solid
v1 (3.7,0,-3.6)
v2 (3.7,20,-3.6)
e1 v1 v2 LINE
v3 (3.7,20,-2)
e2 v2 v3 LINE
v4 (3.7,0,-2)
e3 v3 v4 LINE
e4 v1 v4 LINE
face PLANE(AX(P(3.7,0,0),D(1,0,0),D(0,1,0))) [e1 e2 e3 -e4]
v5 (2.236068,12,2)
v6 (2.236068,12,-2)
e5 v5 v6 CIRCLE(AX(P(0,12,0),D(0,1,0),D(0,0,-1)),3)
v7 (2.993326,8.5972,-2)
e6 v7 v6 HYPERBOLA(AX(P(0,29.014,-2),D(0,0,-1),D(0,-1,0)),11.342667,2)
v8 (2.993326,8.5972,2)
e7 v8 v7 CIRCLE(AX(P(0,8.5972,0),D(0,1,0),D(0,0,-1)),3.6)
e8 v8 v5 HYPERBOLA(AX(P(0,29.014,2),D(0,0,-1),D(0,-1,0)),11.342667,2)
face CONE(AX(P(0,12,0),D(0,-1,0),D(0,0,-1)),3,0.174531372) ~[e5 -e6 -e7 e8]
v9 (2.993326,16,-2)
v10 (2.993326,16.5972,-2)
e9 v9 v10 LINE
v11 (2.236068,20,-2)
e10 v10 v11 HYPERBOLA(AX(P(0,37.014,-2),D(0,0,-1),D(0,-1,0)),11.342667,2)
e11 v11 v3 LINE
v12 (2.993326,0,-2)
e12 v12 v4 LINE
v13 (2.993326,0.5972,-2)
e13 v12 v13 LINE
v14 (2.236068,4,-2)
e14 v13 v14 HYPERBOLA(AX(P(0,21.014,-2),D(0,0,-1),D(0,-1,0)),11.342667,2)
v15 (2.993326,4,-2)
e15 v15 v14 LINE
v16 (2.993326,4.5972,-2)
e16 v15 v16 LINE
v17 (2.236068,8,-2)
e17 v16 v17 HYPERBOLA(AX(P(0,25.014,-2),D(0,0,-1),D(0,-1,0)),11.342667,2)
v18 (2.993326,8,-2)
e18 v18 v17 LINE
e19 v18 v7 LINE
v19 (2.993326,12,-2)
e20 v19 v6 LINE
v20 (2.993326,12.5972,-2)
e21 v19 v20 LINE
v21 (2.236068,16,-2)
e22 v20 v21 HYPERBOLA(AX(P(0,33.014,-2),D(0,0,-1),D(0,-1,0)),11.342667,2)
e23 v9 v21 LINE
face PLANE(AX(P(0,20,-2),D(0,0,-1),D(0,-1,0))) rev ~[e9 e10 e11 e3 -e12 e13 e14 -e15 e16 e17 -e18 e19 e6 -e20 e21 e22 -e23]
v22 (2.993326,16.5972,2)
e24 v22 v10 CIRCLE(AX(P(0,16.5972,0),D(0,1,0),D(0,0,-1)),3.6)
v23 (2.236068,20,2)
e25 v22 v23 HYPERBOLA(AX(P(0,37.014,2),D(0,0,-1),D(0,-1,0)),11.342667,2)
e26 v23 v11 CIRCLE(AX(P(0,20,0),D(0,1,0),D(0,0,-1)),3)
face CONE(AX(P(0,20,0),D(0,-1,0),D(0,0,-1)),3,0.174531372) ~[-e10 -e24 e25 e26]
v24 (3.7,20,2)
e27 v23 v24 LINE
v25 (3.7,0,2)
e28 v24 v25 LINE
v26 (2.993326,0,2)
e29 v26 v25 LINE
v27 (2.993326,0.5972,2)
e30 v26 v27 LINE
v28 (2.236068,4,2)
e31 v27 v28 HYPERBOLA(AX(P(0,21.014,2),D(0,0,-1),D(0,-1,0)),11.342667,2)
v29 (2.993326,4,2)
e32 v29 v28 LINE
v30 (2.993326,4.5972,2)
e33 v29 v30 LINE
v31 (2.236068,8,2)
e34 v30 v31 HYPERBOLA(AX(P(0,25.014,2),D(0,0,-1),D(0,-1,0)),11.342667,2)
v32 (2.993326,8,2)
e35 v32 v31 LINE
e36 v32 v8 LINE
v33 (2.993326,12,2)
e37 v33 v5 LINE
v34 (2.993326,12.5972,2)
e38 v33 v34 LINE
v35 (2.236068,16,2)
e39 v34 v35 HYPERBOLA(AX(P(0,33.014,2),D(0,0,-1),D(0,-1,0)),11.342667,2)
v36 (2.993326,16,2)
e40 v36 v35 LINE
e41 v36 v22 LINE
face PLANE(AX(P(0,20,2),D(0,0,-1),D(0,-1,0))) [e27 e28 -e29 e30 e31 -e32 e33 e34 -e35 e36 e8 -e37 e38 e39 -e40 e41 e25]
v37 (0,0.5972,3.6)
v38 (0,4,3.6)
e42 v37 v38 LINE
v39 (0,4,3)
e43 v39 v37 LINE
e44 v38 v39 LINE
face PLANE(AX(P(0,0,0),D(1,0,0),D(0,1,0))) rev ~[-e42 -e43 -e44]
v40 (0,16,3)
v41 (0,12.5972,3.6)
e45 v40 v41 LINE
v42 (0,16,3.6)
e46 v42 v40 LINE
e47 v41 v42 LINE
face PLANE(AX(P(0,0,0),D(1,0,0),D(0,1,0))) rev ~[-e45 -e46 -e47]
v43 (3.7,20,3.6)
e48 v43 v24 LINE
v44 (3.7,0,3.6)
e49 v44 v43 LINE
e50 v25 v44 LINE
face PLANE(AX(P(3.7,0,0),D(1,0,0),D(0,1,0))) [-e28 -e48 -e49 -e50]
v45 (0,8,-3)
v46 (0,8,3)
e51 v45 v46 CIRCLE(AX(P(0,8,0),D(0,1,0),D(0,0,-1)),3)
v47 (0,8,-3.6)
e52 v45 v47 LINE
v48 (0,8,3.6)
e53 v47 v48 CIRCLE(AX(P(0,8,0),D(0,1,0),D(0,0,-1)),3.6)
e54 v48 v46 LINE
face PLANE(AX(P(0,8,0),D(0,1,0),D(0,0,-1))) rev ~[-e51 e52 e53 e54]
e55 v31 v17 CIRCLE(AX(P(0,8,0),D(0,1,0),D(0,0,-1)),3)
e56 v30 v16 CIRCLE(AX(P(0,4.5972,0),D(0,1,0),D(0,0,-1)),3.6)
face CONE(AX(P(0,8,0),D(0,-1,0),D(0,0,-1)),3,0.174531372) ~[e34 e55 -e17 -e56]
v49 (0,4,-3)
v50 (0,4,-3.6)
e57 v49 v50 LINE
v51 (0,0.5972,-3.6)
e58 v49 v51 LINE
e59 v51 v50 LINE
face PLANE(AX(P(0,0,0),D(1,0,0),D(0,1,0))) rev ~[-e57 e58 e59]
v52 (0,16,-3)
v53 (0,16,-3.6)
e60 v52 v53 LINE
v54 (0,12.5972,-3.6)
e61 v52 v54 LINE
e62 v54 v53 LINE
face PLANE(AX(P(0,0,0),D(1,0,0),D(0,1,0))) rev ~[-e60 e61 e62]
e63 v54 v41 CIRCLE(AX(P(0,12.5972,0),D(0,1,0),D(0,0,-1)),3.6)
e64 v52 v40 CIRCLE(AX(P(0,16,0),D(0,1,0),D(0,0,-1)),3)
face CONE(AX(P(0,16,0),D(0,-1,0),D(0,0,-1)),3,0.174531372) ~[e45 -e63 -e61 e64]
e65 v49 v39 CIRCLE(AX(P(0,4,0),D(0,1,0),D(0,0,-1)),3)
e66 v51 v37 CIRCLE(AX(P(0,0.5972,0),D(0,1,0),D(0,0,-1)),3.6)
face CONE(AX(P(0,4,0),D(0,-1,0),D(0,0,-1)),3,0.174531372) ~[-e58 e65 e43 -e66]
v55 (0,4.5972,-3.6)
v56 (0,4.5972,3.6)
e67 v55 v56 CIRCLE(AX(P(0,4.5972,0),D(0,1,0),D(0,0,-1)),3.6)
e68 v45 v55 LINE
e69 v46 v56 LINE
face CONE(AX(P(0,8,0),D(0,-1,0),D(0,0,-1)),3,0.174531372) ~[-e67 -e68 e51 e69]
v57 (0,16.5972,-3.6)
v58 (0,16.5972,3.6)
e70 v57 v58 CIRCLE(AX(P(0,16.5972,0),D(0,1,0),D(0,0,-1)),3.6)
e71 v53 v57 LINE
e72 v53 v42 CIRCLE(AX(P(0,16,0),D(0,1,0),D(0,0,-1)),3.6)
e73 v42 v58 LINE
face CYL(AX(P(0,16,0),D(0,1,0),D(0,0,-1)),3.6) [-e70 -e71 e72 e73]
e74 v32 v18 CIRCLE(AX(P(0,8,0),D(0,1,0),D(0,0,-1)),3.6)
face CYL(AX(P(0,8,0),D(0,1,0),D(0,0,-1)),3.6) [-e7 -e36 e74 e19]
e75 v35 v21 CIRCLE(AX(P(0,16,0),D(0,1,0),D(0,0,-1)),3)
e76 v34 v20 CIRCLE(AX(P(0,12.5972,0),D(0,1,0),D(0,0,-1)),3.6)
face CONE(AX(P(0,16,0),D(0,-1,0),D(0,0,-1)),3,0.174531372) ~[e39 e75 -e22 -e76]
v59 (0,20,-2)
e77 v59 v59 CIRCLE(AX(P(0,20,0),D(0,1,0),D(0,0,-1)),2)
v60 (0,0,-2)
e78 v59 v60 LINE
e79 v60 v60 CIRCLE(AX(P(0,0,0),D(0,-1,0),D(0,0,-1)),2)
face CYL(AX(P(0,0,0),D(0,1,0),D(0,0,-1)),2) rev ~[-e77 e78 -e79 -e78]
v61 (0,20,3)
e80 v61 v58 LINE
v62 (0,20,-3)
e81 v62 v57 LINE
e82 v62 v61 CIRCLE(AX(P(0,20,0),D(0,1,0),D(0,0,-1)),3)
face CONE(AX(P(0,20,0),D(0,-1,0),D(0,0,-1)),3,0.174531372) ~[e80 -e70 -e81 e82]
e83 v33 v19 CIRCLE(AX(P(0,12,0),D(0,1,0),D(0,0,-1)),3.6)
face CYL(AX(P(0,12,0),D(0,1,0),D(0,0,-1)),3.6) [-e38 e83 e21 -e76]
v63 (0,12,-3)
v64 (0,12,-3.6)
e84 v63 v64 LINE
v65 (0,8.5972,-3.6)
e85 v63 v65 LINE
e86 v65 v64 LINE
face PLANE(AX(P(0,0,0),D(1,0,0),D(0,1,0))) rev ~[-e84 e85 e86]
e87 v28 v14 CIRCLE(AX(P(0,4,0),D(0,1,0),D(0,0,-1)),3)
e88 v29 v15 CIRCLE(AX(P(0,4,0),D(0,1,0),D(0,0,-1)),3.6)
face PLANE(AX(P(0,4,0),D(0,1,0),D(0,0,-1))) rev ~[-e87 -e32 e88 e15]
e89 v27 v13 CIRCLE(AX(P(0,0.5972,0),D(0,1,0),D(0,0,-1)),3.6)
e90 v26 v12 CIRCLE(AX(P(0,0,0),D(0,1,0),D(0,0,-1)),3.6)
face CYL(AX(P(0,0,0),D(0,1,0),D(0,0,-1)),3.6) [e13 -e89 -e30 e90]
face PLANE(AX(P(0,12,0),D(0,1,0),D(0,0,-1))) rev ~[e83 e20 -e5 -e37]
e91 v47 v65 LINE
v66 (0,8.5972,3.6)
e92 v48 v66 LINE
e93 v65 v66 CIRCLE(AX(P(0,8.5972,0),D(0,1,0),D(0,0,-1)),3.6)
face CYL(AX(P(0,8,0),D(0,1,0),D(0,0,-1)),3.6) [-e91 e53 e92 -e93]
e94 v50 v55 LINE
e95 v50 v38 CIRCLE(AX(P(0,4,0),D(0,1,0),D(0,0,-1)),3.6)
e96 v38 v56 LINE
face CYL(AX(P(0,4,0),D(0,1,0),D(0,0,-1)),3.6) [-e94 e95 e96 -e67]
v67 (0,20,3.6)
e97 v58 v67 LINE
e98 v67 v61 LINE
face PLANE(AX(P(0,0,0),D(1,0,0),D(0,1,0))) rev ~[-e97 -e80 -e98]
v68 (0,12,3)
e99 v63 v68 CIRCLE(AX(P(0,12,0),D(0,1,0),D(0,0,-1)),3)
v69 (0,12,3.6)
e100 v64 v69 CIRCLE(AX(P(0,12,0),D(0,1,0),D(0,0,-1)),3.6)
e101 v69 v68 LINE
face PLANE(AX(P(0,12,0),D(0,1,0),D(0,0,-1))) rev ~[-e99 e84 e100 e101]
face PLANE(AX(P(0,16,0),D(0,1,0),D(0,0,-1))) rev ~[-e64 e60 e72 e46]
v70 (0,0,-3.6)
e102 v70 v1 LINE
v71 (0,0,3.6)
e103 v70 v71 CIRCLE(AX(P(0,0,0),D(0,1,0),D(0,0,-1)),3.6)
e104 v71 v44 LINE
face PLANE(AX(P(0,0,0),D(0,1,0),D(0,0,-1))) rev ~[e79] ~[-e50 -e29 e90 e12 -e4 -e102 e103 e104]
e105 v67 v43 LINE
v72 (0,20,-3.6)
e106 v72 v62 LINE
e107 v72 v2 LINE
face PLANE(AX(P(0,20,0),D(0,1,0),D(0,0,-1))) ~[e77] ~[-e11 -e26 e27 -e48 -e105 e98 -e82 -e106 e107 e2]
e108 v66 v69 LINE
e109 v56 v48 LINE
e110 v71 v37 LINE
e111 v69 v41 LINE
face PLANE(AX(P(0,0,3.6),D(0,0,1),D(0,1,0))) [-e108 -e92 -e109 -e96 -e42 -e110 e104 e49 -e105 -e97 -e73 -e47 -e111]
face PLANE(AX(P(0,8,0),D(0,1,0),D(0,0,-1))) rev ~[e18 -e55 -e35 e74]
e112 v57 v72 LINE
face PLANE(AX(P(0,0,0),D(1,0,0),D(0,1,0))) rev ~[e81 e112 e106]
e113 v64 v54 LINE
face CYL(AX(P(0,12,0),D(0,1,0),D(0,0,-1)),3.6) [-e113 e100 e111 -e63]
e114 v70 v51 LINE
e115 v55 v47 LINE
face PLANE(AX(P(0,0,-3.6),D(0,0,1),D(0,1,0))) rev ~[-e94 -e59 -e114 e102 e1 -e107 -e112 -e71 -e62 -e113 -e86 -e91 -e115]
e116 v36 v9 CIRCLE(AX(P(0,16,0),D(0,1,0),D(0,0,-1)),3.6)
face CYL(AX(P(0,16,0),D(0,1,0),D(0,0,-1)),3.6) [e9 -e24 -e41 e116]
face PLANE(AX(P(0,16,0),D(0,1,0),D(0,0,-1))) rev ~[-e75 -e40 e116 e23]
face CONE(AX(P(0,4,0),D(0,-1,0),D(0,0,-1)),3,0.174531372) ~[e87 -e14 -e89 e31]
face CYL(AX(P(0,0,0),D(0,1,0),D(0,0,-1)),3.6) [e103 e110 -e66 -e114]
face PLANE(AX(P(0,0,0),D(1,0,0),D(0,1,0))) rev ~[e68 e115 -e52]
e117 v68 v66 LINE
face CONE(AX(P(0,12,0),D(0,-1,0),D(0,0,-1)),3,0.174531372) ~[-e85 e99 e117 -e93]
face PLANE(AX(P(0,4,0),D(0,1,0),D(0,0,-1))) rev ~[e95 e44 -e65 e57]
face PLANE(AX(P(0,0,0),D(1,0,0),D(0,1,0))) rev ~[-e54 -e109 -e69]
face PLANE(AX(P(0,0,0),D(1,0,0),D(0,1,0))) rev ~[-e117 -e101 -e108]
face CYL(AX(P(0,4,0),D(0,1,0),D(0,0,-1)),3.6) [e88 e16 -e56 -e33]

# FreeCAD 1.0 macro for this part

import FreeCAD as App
import Part
import Sketcher
from FreeCAD import Vector
Q = App.Units.Quantity


def add_polygon(sketch, points):
    """Adds a closed chain of lines whose ends are joined by coincident constraints."""
    first, n = sketch.GeometryCount, len(points)
    for a, b in zip(points, points[1:] + points[:1]):
        sketch.addGeometry(Part.LineSegment(App.Vector(*a, 0), App.Vector(*b, 0)), False)
    for i in range(n):
        sketch.addConstraint(Sketcher.Constraint("Coincident", first + i, 2, first + (i + 1) % n, 1))

doc = App.newDocument("Part")
body = doc.addObject("PartDesign::Body", "Body")

sketch1 = body.newObject("Sketcher::SketchObject", "Sketch")
sketch1.AttachmentSupport = (doc.getObject("YZ_Plane"), [""])
sketch1.MapMode = "FlatFace"
add_polygon(sketch1, [(0, -2), (0, -3.6), (0.6, -3.6), (4, -3), (4, -3.6), (4.6, -3.6), (8, -3), (8, -3.6), (8.6, -3.6), (12, -3), (12, -3.6), (12.6, -3.6), (16, -3), (16, -3.6), (16.6, -3.6), (20, -3), (20, -2)])
sketch1.addConstraint([
    Sketcher.Constraint("Vertical", 0),
    Sketcher.Constraint("Horizontal", 1),
    Sketcher.Constraint("Vertical", 3),
    Sketcher.Constraint("Horizontal", 4),
    Sketcher.Constraint("Vertical", 6),
    Sketcher.Constraint("Horizontal", 7),
    Sketcher.Constraint("Vertical", 9),
    Sketcher.Constraint("Horizontal", 10),
    Sketcher.Constraint("Vertical", 12),
    Sketcher.Constraint("Horizontal", 13),
    Sketcher.Constraint("Vertical", 15),
    Sketcher.Constraint("Horizontal", 16),
    Sketcher.Constraint("PointOnObject", 0, 2, -2),
    Sketcher.Constraint("Parallel", 2, 5),
    Sketcher.Constraint("Parallel", 5, 8),
    Sketcher.Constraint("Parallel", 8, 11),
    Sketcher.Constraint("Parallel", 11, 14),
    Sketcher.Constraint("Horizontal", 1, 2, 3, 2),
    Sketcher.Constraint("Horizontal", 2, 2, 5, 2),
    Sketcher.Constraint("Horizontal", 4, 2, 6, 2),
    Sketcher.Constraint("Horizontal", 5, 2, 8, 2),
    Sketcher.Constraint("Horizontal", 7, 2, 9, 2),
    Sketcher.Constraint("Horizontal", 8, 2, 11, 2),
    Sketcher.Constraint("Horizontal", 10, 2, 12, 2),
    Sketcher.Constraint("Horizontal", 11, 2, 14, 2),
    Sketcher.Constraint("Equal", 1, 4),
    Sketcher.Constraint("Equal", 4, 7),
    Sketcher.Constraint("Equal", 7, 10),
    Sketcher.Constraint("Equal", 10, 13),
    Sketcher.Constraint("DistanceY", 15, 1, 15, 2, Q("1 mm")),
    Sketcher.Constraint("Angle", 2, Q("10 deg")),
    Sketcher.Constraint("DistanceX", -1, 1, 2, 2, Q("4 mm")),
    Sketcher.Constraint("DistanceY", 15, 2, -1, 1, Q("2 mm")),
    Sketcher.Constraint("DistanceY", 0, 2, -1, 1, Q("3.6 mm")),
])
revolution = body.newObject("PartDesign::Revolution", "Revolution")
revolution.Profile = sketch1
revolution.ReferenceAxis = (sketch1, ["H_Axis"])
revolution.Angle = 360

sketch2 = body.newObject("Sketcher::SketchObject", "Sketch001")
sketch2.AttachmentSupport = (doc.getObject("YZ_Plane"), [""])
sketch2.MapMode = "FlatFace"
add_polygon(sketch2, [(0, -2), (0, -3.6), (20, -3.6), (20, -2)])
add_polygon(sketch2, [(0, 3.6), (0, 2), (20, 2), (20, 3.6)])
sketch2.addConstraint([
    Sketcher.Constraint("Vertical", 0),
    Sketcher.Constraint("Horizontal", 1),
    Sketcher.Constraint("Vertical", 2),
    Sketcher.Constraint("Horizontal", 3),
    Sketcher.Constraint("Vertical", 4),
    Sketcher.Constraint("Horizontal", 5),
    Sketcher.Constraint("Vertical", 6),
    Sketcher.Constraint("Horizontal", 7),
    Sketcher.Constraint("Symmetric", 3, 2, 4, 2, -1, 1),
    Sketcher.Constraint("Symmetric", 1, 2, 6, 2, -1),
    Sketcher.Constraint("PointOnObject", 0, 2, -2),
    Sketcher.Constraint("DistanceY", 0, 2, 0, 1, Q("1.6 mm")),
    Sketcher.Constraint("DistanceX", 1, 1, 1, 2, Q("20 mm")),
    Sketcher.Constraint("DistanceY", 2, 2, -1, 1, Q("2 mm")),
])
pad1 = body.newObject("PartDesign::Pad", "Pad")
pad1.Profile = sketch2
pad1.Length = 3.7

doc.recompute()
